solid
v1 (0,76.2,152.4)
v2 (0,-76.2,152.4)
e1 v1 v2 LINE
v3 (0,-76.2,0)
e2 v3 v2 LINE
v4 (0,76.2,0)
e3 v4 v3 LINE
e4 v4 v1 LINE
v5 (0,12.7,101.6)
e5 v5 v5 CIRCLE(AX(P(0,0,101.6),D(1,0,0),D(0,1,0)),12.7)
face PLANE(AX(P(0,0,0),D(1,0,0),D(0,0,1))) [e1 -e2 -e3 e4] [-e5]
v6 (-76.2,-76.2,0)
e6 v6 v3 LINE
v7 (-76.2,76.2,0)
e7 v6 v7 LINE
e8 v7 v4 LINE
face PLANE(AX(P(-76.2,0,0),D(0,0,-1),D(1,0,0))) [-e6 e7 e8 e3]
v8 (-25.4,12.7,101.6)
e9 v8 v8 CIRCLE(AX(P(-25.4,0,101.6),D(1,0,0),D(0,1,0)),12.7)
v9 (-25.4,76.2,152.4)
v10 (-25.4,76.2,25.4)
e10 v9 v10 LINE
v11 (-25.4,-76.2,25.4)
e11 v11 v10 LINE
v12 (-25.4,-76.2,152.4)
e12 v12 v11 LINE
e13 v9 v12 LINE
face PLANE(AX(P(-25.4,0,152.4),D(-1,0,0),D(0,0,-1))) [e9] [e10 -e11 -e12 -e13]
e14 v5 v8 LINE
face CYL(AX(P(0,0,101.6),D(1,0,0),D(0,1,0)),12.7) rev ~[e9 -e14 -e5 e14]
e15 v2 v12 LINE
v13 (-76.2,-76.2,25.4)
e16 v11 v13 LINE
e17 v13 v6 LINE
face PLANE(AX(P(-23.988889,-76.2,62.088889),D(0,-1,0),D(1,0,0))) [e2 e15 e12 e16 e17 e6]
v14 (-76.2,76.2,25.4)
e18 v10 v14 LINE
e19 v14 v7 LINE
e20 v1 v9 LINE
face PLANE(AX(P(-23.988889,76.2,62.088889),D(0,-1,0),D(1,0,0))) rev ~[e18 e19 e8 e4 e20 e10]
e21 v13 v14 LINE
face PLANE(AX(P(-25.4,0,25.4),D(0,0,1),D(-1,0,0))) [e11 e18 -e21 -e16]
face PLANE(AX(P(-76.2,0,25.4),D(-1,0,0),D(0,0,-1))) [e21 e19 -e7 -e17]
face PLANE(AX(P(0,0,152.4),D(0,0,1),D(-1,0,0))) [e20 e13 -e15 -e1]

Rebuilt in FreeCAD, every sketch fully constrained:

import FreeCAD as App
import Part
import Sketcher

V = App.Vector
Q = App.Units.Quantity


def add_polygon(sketch, points):
    """Adds a closed chain of lines whose ends are joined by coincident constraints."""
    first, n = sketch.GeometryCount, len(points)
    for a, b in zip(points, points[1:] + points[:1]):
        sketch.addGeometry(Part.LineSegment(App.Vector(*a, 0), App.Vector(*b, 0)), False)
    for i in range(n):
        sketch.addConstraint(Sketcher.Constraint("Coincident", first + i, 2, first + (i + 1) % n, 1))

doc = App.newDocument("Part")
body = doc.addObject("PartDesign::Body", "Body")

sketch1 = body.newObject("Sketcher::SketchObject", "Sketch")
sketch1.AttachmentSupport = (doc.getObject("XZ_Plane"), [""])
sketch1.MapMode = "FlatFace"
add_polygon(sketch1, [(-76, 0), (0, 0), (0, 152), (-25, 152), (-25, 25), (-76, 25)])
sketch1.addConstraint([
    Sketcher.Constraint("Horizontal", 0),
    Sketcher.Constraint("Vertical", 1),
    Sketcher.Constraint("Horizontal", 2),
    Sketcher.Constraint("Vertical", 3),
    Sketcher.Constraint("Horizontal", 4),
    Sketcher.Constraint("Vertical", 5),
    Sketcher.Constraint("Coincident", 0, 2, -1, 1),
    Sketcher.Constraint("Equal", 2, 5),
    Sketcher.Constraint("DistanceX", 0, 1, 0, 2, Q("3 in")),
    Sketcher.Constraint("DistanceX", 2, 2, 2, 1, Q("1 in")),
    Sketcher.Constraint("DistanceY", 1, 1, 1, 2, Q("6 in")),
])
pad1 = body.newObject("PartDesign::Pad", "Pad")
pad1.Profile = sketch1
pad1.Length = Q("6 in")
pad1.Midplane = True

sketch2 = body.newObject("Sketcher::SketchObject", "Sketch001")
sketch2.AttachmentSupport = (doc.getObject("YZ_Plane"), [""])
sketch2.MapMode = "FlatFace"
sketch2.addGeometry(Part.Circle(V(0, 102, 0), V(0, 0, 1), 13), False)
sketch2.addConstraint([
    Sketcher.Constraint("PointOnObject", 0, 3, -2),
    Sketcher.Constraint("Diameter", 0, Q("1 in")),
    Sketcher.Constraint("DistanceY", -1, 1, 0, 3, Q("4 in")),
])
pocket1 = body.newObject("PartDesign::Pocket", "Pocket")
pocket1.Profile = sketch2
pocket1.Length = Q("3.45 in")

doc.recompute()
